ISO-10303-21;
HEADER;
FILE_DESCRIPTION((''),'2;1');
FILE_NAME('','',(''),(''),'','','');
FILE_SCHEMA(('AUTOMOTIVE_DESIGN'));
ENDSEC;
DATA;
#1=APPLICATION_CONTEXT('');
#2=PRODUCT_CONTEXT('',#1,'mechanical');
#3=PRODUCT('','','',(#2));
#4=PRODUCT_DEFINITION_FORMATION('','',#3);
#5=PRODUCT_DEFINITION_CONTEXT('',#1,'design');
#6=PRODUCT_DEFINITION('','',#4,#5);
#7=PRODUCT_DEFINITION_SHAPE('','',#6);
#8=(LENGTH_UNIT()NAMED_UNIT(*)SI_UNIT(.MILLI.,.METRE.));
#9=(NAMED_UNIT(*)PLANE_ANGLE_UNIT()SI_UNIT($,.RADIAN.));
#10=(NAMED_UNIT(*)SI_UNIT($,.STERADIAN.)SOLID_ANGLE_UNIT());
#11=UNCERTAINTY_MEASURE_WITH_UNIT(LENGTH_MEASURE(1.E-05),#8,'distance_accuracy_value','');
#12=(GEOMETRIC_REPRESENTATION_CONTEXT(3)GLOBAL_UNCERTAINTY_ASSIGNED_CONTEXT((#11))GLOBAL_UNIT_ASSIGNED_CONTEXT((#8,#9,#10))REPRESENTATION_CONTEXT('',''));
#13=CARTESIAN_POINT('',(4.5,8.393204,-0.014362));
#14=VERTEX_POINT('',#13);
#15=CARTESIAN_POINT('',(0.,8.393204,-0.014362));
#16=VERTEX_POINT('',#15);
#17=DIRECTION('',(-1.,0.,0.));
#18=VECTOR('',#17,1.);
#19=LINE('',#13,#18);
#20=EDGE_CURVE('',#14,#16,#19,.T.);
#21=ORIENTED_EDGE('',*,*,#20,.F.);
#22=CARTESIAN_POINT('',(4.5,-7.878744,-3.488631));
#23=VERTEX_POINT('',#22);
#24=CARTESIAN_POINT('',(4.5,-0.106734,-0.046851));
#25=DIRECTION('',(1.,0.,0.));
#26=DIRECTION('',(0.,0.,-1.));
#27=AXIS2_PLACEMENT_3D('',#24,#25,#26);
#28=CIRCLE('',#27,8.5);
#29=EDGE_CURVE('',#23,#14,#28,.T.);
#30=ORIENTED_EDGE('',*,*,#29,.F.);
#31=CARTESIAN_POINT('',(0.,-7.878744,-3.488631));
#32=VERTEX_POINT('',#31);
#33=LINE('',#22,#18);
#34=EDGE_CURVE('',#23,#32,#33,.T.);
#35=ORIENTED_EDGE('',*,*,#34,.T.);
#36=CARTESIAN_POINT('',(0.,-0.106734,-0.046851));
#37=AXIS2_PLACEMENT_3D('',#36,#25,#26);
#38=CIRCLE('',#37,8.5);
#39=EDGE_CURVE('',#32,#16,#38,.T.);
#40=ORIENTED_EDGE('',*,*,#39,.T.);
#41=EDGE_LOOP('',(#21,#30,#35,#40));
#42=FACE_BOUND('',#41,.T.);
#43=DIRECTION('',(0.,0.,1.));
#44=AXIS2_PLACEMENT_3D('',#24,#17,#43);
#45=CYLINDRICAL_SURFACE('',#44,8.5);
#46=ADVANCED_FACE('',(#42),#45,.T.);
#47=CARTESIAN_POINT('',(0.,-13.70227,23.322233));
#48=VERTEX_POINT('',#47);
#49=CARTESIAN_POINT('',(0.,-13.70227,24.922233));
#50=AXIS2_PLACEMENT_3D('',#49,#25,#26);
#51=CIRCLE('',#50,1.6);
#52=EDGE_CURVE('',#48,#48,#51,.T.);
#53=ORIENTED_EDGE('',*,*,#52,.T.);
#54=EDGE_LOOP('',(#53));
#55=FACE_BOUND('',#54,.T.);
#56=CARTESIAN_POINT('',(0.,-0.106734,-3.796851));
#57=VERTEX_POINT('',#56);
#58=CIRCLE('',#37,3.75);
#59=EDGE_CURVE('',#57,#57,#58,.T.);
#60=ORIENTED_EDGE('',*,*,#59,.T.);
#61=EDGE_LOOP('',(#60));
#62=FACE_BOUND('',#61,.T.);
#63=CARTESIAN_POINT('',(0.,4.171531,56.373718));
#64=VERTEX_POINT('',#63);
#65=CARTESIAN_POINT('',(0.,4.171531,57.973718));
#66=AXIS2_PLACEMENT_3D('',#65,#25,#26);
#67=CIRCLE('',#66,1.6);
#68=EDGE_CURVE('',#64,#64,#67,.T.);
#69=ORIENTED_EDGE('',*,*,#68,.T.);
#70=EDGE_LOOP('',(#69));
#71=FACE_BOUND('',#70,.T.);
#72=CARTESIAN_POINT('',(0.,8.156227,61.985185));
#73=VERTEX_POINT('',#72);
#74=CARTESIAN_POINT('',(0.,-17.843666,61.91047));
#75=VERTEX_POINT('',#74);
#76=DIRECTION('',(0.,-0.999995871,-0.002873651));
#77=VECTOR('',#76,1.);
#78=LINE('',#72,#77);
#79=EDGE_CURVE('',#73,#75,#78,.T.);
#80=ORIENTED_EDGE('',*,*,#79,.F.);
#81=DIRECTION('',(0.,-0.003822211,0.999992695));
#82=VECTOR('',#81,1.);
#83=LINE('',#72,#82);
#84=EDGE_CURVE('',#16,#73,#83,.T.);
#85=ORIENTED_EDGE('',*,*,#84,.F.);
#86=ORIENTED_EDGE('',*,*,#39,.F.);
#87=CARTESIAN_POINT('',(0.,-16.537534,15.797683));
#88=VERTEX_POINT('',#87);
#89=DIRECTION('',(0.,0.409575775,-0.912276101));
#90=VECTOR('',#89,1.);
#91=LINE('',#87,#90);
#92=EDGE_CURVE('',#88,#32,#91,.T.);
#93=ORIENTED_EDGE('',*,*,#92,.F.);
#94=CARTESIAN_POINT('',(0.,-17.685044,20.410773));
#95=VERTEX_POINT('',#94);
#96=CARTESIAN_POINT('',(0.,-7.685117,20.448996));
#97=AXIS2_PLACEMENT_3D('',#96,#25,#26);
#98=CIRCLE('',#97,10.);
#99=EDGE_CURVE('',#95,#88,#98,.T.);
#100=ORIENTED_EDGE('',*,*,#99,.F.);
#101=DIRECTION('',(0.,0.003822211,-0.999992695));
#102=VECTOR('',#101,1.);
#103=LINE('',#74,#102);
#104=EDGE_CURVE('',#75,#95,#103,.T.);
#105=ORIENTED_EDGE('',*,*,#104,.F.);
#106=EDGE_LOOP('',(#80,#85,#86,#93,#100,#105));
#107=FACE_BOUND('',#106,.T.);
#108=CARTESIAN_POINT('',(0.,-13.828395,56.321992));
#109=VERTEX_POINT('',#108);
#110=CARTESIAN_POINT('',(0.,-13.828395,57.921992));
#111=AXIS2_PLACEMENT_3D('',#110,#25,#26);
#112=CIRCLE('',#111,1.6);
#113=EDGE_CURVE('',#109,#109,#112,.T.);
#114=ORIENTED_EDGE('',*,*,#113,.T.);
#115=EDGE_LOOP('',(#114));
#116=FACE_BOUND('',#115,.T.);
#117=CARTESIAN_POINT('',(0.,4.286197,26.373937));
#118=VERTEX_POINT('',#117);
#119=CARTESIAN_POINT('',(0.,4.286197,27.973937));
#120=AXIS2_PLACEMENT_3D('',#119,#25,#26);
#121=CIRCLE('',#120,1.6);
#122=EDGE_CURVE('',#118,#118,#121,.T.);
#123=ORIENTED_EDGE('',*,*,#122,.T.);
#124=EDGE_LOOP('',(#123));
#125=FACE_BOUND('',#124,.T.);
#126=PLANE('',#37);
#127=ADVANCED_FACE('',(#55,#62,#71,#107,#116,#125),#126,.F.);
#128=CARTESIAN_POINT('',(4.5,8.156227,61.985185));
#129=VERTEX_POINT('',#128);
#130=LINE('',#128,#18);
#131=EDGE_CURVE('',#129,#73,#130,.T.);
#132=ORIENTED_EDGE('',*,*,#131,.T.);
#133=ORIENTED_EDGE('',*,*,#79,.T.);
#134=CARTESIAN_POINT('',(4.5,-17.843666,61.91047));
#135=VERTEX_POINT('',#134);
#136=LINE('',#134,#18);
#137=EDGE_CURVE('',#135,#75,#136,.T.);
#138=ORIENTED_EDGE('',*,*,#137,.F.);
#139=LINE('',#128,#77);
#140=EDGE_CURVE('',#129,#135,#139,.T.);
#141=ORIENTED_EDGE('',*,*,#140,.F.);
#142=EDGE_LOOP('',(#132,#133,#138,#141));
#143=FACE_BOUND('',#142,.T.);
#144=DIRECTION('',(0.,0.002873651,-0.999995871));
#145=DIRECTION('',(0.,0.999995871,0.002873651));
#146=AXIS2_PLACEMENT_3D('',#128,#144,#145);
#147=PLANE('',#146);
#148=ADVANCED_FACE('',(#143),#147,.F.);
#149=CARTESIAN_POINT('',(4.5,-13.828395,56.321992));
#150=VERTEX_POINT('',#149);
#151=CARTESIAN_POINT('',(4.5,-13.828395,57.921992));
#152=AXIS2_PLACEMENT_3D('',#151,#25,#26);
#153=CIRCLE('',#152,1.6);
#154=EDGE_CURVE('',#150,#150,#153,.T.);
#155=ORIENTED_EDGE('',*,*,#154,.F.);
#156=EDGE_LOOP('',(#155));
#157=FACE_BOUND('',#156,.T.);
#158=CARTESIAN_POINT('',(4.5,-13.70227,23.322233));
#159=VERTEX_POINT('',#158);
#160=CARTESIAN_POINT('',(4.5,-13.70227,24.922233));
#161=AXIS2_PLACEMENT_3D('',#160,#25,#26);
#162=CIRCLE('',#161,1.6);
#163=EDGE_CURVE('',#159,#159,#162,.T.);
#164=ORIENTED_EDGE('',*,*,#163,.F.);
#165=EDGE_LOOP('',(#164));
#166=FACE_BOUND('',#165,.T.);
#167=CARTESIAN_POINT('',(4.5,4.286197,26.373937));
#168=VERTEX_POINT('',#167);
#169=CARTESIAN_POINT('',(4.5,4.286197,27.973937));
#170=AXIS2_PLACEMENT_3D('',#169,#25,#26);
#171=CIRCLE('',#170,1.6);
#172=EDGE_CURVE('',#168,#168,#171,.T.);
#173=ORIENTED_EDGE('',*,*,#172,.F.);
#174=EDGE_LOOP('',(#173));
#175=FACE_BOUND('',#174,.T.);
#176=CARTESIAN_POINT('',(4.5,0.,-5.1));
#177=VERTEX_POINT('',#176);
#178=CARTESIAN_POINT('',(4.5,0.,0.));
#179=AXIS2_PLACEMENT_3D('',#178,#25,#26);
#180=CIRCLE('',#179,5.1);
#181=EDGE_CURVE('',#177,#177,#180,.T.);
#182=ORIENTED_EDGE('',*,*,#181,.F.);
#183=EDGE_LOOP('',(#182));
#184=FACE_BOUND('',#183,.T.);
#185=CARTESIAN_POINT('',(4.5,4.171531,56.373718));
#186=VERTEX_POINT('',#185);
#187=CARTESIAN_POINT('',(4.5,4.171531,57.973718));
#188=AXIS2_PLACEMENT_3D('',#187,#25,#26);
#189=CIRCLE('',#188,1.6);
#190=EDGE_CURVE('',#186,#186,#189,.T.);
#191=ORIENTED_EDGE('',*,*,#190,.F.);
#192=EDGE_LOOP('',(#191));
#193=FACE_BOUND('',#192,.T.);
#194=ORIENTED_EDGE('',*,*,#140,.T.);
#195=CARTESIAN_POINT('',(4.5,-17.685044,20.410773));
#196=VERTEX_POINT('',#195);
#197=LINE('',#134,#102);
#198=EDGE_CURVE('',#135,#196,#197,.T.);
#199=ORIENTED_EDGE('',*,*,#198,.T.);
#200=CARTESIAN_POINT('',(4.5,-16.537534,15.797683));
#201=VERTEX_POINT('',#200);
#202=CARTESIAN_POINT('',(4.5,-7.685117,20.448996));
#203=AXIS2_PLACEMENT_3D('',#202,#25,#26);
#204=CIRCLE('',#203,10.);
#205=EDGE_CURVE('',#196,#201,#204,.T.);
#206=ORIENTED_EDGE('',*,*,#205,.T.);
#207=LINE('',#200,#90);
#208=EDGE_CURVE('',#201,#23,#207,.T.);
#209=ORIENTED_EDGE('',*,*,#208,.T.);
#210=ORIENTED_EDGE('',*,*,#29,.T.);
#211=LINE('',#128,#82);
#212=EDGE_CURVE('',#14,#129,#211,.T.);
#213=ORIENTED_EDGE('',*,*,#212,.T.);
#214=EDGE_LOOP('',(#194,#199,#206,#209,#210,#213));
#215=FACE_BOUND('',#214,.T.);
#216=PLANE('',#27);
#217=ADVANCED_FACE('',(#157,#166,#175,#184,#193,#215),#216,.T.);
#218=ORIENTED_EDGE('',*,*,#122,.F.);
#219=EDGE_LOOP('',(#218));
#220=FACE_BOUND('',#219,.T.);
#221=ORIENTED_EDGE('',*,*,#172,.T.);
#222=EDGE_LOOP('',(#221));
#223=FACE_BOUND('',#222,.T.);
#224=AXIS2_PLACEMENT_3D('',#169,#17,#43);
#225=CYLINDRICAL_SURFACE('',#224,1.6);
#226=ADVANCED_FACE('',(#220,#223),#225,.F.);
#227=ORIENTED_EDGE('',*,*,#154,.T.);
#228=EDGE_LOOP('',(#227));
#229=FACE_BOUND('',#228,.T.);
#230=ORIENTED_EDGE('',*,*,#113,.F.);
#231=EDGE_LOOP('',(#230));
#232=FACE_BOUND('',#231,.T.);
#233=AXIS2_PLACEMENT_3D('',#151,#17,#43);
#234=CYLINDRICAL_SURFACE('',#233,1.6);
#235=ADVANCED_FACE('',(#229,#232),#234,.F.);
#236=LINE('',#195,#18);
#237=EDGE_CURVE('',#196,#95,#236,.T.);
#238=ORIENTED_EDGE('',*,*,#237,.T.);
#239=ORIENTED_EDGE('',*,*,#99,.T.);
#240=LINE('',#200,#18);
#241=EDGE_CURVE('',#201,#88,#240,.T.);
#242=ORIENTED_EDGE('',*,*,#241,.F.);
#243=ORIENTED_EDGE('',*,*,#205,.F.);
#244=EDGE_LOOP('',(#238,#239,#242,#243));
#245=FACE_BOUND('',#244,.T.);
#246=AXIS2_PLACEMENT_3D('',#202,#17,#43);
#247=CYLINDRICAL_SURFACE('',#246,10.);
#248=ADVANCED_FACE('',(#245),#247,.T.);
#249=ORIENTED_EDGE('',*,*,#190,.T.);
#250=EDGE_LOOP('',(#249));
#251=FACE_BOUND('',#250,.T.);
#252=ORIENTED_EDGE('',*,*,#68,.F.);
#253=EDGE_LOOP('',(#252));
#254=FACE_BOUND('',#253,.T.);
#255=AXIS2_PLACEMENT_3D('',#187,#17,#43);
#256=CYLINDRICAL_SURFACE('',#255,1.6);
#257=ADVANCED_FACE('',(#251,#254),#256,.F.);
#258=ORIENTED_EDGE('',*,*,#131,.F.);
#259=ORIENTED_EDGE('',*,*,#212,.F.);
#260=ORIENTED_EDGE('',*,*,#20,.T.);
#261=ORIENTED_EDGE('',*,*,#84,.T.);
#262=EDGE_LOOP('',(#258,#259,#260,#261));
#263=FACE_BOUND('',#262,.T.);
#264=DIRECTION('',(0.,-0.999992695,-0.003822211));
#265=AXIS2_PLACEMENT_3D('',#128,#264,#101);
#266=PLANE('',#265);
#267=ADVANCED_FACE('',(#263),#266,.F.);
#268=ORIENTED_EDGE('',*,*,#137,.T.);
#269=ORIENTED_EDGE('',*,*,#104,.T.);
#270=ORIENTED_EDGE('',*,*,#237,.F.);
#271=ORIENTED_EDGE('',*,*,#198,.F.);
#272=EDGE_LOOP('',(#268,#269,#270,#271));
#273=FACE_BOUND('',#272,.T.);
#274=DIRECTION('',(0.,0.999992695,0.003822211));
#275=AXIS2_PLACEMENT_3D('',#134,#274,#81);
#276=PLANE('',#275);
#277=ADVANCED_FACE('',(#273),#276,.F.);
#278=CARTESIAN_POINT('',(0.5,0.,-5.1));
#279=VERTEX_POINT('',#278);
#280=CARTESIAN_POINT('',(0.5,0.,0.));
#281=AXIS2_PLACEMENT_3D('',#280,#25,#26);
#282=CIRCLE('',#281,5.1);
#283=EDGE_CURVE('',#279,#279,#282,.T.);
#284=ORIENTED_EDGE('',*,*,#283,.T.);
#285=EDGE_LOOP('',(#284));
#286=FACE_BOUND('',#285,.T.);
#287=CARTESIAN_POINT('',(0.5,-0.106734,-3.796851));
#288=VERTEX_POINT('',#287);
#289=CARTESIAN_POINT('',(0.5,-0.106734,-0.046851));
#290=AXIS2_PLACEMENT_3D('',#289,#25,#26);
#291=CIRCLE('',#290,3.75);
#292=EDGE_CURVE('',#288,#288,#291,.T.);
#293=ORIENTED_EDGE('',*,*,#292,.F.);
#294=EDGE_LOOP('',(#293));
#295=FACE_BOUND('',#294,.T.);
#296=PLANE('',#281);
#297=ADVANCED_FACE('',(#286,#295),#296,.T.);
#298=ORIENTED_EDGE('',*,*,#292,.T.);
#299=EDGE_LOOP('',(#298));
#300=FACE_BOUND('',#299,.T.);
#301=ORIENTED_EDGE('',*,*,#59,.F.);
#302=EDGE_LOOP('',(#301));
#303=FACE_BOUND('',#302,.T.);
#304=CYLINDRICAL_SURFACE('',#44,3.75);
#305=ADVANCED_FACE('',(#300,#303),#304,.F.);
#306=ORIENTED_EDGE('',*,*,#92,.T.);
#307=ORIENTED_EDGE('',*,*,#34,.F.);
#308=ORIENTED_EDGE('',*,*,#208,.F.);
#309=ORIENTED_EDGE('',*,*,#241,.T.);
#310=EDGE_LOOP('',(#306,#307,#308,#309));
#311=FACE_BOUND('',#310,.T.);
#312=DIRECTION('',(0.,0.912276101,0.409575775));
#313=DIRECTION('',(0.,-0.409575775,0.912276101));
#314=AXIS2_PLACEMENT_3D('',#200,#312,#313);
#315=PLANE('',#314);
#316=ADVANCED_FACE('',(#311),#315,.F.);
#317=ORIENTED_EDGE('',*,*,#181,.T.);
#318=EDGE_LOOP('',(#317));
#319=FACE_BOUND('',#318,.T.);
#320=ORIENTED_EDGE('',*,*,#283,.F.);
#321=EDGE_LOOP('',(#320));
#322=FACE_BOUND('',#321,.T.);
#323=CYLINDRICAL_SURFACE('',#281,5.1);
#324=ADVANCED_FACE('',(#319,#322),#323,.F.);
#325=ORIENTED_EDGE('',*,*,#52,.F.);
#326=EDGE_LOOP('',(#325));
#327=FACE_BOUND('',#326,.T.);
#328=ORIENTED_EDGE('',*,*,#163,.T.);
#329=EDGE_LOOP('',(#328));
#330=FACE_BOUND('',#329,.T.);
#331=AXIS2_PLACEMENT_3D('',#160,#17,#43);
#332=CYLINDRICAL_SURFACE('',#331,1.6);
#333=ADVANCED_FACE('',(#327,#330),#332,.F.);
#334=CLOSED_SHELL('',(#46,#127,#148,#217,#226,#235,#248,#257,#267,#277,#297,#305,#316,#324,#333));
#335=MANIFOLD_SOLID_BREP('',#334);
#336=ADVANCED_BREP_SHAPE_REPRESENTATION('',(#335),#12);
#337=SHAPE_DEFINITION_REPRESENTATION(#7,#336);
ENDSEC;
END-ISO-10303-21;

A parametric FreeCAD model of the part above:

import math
import FreeCAD as App
import Part
import Sketcher
from FreeCAD import Vector
Q = App.Units.Quantity

doc = App.newDocument("Part")
body = doc.addObject("PartDesign::Body", "Body")

# Sketch on YZ plane
sketch1 = body.newObject("Sketcher::SketchObject", "Sketch")
sketch1.AttachmentSupport = (doc.getObject("YZ_Plane"), [""])
sketch1.MapMode = "FlatFace"
sketch1.addGeometry([
    Part.LineSegment(Vector(-16.5, 15.8, 0), Vector(-7.9, -3.5, 0)),  # 0
    Part.ArcOfCircle(Part.Circle(Vector(-0.1, 0, 0), Vector(0, 0, 1), 8.5), math.radians(-156), math.radians(0)),  # 1
    Part.LineSegment(Vector(8.4, 0, 0), Vector(8.2, 62, 0)),  # 2
    Part.LineSegment(Vector(8.2, 62, 0), Vector(-17.8, 61.9, 0)),  # 3
    Part.LineSegment(Vector(-17.8, 61.9, 0), Vector(-17.7, 20.4, 0)),  # 4
    Part.ArcOfCircle(Part.Circle(Vector(-7.7, 20.4, 0), Vector(0, 0, 1), 10), math.radians(-180), math.radians(-152)),  # 5
    Part.Circle(Vector(-13.8, 57.9, 0), Vector(0, 0, 1), 1.6),  # 6
    Part.Circle(Vector(-13.7, 24.9, 0), Vector(0, 0, 1), 1.6),  # 7
    Part.Circle(Vector(4.2, 58, 0), Vector(0, 0, 1), 1.6),  # 8
    Part.Circle(Vector(4.3, 28, 0), Vector(0, 0, 1), 1.6),  # 9
    Part.Circle(Vector(-0.1, 0, 0), Vector(0, 0, 1), 3.8),  # 10
], False)
sketch1.addConstraint([
    Sketcher.Constraint("Coincident", 0, 2, 1, 1),
    Sketcher.Constraint("Tangent", 1, 2, 2, 1),
    Sketcher.Constraint("Coincident", 2, 2, 3, 1),
    Sketcher.Constraint("Coincident", 3, 2, 4, 1),
    Sketcher.Constraint("Tangent", 4, 2, 5, 1),
    Sketcher.Constraint("Coincident", 5, 2, 0, 1),
    Sketcher.Constraint("Coincident", 10, 3, 1, 3),
    Sketcher.Constraint("Equal", 6, 7),
    Sketcher.Constraint("Equal", 7, 8),
    Sketcher.Constraint("Equal", 8, 9),
    Sketcher.Constraint("Parallel", 2, 4),
    Sketcher.Constraint("Radius", 5, Q("10 mm")),
    Sketcher.Constraint("Diameter", 6, Q("3.2 mm")),
    Sketcher.Constraint("Diameter", 10, Q("7.5 mm")),
    Sketcher.Constraint("Radius", 1, Q("8.5 mm")),
    Sketcher.Constraint("Distance", 2, Q("62 mm")),
    Sketcher.Constraint("Distance", 3, Q("26 mm")),
    Sketcher.Constraint("Distance", 4, Q("41.5 mm")),
    Sketcher.Constraint("DistanceX", 7, 3, 8, 3, Q("17.873801 mm")),
    Sketcher.Constraint("DistanceY", 1, 2, 9, 3, Q("27.988299 mm")),
    Sketcher.Constraint("DistanceX", 4, 2, 0, 2, Q("9.8063 mm")),
    Sketcher.Constraint("DistanceX", 5, 2, 1, 3, Q("16.4308 mm")),
    Sketcher.Constraint("DistanceY", 1, 3, -1, 1, Q("0.046851 mm")),
    Sketcher.Constraint("DistanceX", 7, 3, -1, 1, Q("13.70227 mm")),
    Sketcher.Constraint("DistanceY", -1, 1, 8, 3, Q("57.973718 mm")),
    Sketcher.Constraint("DistanceY", 0, 2, -1, 1, Q("3.488631 mm")),
    Sketcher.Constraint("DistanceY", -1, 1, 3, 2, Q("61.91047 mm")),
    Sketcher.Constraint("DistanceX", 6, 3, 5, 3, Q("6.143278 mm")),
    Sketcher.Constraint("DistanceY", 7, 3, 6, 3, Q("32.999759 mm")),
    Sketcher.Constraint("DistanceX", 1, 3, 9, 3, Q("4.392931 mm")),
    Sketcher.Constraint("DistanceY", 7, 3, 2, 2, Q("37.062952 mm")),
    Sketcher.Constraint("DistanceX", 1, 3, -1, 1, Q("0.106734 mm")),
])
pad1 = body.newObject("PartDesign::Pad", "Pad")
pad1.Profile = sketch1
pad1.Length = 4.5

# Sketch on YZ plane
sketch2 = body.newObject("Sketcher::SketchObject", "Sketch001")
sketch2.AttachmentSupport = (doc.getObject("YZ_Plane"), [""])
sketch2.MapMode = "FlatFace"
sketch2.AttachmentOffset = App.Placement(Vector(0, 0, 4.5), App.Rotation())
sketch2.addGeometry(Part.Circle(Vector(0, 0, 0), Vector(0, 0, 1), 5), False)
sketch2.addConstraint([
    Sketcher.Constraint("Coincident", 0, 3, -1, 1),
    Sketcher.Constraint("Diameter", 0, Q("10.2 mm")),
])
pocket1 = body.newObject("PartDesign::Pocket", "Pocket")
pocket1.Profile = sketch2
pocket1.Length = 4

doc.recompute()
